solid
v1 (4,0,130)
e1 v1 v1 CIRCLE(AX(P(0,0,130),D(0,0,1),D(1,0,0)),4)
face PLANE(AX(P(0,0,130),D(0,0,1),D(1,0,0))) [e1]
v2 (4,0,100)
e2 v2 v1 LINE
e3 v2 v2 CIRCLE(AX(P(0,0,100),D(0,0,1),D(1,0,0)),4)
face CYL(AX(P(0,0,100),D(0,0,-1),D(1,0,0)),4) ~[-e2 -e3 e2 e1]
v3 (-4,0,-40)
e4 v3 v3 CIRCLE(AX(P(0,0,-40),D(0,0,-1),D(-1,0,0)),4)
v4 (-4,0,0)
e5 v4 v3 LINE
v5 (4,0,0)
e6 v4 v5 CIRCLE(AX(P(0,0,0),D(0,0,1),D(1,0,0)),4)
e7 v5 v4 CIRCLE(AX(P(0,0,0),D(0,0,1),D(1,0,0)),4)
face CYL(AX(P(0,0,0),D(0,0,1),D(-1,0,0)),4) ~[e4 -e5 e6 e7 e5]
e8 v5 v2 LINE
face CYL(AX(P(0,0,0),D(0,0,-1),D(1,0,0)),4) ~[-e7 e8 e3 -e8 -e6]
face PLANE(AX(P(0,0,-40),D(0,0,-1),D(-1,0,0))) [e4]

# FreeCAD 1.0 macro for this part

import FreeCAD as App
import Part
import Sketcher

doc = App.newDocument("Part")
body = doc.addObject("PartDesign::Body", "Body")

# Sketch on XY plane
sketch1 = body.newObject("Sketcher::SketchObject", "Sketch")
sketch1.AttachmentSupport = (doc.getObject("XY_Plane"), [""])
sketch1.MapMode = "FlatFace"
sketch1.addGeometry(Part.Circle(App.Vector(0, 0, 0), App.Vector(0, 0, 1), 4), False)
sketch1.addConstraint(Sketcher.Constraint("Coincident", 0, 3, -1, 1))
sketch1.addConstraint(Sketcher.Constraint("Diameter", 0, 8.0))
pad1 = body.newObject("PartDesign::Pad", "Pad")
pad1.Profile = sketch1
pad1.Length = 100

# Sketch on XY plane
sketch2 = body.newObject("Sketcher::SketchObject", "Sketch001")
sketch2.AttachmentSupport = (doc.getObject("XY_Plane"), [""])
sketch2.MapMode = "FlatFace"
sketch2.addGeometry(Part.Circle(App.Vector(0, 0, 0), App.Vector(0, 0, 1), 4), False)
sketch2.addConstraint(Sketcher.Constraint("Coincident", 0, 3, -1, 1))
sketch2.addConstraint(Sketcher.Constraint("Diameter", 0, 8.0))
pad2 = body.newObject("PartDesign::Pad", "Pad001")
pad2.Profile = sketch2
pad2.Length = 40
pad2.Reversed = True

# Sketch on XY plane
sketch3 = body.newObject("Sketcher::SketchObject", "Sketch002")
sketch3.AttachmentSupport = (doc.getObject("XY_Plane"), [""])
sketch3.MapMode = "FlatFace"
sketch3.AttachmentOffset = App.Placement(App.Vector(0, 0, 100), App.Rotation())
sketch3.addGeometry(Part.Circle(App.Vector(0, 0, 0), App.Vector(0, 0, 1), 4), False)
sketch3.addConstraint(Sketcher.Constraint("Coincident", 0, 3, -1, 1))
sketch3.addConstraint(Sketcher.Constraint("Diameter", 0, 8.0))
pad3 = body.newObject("PartDesign::Pad", "Pad002")
pad3.Profile = sketch3
pad3.Length = 30

doc.recompute()
